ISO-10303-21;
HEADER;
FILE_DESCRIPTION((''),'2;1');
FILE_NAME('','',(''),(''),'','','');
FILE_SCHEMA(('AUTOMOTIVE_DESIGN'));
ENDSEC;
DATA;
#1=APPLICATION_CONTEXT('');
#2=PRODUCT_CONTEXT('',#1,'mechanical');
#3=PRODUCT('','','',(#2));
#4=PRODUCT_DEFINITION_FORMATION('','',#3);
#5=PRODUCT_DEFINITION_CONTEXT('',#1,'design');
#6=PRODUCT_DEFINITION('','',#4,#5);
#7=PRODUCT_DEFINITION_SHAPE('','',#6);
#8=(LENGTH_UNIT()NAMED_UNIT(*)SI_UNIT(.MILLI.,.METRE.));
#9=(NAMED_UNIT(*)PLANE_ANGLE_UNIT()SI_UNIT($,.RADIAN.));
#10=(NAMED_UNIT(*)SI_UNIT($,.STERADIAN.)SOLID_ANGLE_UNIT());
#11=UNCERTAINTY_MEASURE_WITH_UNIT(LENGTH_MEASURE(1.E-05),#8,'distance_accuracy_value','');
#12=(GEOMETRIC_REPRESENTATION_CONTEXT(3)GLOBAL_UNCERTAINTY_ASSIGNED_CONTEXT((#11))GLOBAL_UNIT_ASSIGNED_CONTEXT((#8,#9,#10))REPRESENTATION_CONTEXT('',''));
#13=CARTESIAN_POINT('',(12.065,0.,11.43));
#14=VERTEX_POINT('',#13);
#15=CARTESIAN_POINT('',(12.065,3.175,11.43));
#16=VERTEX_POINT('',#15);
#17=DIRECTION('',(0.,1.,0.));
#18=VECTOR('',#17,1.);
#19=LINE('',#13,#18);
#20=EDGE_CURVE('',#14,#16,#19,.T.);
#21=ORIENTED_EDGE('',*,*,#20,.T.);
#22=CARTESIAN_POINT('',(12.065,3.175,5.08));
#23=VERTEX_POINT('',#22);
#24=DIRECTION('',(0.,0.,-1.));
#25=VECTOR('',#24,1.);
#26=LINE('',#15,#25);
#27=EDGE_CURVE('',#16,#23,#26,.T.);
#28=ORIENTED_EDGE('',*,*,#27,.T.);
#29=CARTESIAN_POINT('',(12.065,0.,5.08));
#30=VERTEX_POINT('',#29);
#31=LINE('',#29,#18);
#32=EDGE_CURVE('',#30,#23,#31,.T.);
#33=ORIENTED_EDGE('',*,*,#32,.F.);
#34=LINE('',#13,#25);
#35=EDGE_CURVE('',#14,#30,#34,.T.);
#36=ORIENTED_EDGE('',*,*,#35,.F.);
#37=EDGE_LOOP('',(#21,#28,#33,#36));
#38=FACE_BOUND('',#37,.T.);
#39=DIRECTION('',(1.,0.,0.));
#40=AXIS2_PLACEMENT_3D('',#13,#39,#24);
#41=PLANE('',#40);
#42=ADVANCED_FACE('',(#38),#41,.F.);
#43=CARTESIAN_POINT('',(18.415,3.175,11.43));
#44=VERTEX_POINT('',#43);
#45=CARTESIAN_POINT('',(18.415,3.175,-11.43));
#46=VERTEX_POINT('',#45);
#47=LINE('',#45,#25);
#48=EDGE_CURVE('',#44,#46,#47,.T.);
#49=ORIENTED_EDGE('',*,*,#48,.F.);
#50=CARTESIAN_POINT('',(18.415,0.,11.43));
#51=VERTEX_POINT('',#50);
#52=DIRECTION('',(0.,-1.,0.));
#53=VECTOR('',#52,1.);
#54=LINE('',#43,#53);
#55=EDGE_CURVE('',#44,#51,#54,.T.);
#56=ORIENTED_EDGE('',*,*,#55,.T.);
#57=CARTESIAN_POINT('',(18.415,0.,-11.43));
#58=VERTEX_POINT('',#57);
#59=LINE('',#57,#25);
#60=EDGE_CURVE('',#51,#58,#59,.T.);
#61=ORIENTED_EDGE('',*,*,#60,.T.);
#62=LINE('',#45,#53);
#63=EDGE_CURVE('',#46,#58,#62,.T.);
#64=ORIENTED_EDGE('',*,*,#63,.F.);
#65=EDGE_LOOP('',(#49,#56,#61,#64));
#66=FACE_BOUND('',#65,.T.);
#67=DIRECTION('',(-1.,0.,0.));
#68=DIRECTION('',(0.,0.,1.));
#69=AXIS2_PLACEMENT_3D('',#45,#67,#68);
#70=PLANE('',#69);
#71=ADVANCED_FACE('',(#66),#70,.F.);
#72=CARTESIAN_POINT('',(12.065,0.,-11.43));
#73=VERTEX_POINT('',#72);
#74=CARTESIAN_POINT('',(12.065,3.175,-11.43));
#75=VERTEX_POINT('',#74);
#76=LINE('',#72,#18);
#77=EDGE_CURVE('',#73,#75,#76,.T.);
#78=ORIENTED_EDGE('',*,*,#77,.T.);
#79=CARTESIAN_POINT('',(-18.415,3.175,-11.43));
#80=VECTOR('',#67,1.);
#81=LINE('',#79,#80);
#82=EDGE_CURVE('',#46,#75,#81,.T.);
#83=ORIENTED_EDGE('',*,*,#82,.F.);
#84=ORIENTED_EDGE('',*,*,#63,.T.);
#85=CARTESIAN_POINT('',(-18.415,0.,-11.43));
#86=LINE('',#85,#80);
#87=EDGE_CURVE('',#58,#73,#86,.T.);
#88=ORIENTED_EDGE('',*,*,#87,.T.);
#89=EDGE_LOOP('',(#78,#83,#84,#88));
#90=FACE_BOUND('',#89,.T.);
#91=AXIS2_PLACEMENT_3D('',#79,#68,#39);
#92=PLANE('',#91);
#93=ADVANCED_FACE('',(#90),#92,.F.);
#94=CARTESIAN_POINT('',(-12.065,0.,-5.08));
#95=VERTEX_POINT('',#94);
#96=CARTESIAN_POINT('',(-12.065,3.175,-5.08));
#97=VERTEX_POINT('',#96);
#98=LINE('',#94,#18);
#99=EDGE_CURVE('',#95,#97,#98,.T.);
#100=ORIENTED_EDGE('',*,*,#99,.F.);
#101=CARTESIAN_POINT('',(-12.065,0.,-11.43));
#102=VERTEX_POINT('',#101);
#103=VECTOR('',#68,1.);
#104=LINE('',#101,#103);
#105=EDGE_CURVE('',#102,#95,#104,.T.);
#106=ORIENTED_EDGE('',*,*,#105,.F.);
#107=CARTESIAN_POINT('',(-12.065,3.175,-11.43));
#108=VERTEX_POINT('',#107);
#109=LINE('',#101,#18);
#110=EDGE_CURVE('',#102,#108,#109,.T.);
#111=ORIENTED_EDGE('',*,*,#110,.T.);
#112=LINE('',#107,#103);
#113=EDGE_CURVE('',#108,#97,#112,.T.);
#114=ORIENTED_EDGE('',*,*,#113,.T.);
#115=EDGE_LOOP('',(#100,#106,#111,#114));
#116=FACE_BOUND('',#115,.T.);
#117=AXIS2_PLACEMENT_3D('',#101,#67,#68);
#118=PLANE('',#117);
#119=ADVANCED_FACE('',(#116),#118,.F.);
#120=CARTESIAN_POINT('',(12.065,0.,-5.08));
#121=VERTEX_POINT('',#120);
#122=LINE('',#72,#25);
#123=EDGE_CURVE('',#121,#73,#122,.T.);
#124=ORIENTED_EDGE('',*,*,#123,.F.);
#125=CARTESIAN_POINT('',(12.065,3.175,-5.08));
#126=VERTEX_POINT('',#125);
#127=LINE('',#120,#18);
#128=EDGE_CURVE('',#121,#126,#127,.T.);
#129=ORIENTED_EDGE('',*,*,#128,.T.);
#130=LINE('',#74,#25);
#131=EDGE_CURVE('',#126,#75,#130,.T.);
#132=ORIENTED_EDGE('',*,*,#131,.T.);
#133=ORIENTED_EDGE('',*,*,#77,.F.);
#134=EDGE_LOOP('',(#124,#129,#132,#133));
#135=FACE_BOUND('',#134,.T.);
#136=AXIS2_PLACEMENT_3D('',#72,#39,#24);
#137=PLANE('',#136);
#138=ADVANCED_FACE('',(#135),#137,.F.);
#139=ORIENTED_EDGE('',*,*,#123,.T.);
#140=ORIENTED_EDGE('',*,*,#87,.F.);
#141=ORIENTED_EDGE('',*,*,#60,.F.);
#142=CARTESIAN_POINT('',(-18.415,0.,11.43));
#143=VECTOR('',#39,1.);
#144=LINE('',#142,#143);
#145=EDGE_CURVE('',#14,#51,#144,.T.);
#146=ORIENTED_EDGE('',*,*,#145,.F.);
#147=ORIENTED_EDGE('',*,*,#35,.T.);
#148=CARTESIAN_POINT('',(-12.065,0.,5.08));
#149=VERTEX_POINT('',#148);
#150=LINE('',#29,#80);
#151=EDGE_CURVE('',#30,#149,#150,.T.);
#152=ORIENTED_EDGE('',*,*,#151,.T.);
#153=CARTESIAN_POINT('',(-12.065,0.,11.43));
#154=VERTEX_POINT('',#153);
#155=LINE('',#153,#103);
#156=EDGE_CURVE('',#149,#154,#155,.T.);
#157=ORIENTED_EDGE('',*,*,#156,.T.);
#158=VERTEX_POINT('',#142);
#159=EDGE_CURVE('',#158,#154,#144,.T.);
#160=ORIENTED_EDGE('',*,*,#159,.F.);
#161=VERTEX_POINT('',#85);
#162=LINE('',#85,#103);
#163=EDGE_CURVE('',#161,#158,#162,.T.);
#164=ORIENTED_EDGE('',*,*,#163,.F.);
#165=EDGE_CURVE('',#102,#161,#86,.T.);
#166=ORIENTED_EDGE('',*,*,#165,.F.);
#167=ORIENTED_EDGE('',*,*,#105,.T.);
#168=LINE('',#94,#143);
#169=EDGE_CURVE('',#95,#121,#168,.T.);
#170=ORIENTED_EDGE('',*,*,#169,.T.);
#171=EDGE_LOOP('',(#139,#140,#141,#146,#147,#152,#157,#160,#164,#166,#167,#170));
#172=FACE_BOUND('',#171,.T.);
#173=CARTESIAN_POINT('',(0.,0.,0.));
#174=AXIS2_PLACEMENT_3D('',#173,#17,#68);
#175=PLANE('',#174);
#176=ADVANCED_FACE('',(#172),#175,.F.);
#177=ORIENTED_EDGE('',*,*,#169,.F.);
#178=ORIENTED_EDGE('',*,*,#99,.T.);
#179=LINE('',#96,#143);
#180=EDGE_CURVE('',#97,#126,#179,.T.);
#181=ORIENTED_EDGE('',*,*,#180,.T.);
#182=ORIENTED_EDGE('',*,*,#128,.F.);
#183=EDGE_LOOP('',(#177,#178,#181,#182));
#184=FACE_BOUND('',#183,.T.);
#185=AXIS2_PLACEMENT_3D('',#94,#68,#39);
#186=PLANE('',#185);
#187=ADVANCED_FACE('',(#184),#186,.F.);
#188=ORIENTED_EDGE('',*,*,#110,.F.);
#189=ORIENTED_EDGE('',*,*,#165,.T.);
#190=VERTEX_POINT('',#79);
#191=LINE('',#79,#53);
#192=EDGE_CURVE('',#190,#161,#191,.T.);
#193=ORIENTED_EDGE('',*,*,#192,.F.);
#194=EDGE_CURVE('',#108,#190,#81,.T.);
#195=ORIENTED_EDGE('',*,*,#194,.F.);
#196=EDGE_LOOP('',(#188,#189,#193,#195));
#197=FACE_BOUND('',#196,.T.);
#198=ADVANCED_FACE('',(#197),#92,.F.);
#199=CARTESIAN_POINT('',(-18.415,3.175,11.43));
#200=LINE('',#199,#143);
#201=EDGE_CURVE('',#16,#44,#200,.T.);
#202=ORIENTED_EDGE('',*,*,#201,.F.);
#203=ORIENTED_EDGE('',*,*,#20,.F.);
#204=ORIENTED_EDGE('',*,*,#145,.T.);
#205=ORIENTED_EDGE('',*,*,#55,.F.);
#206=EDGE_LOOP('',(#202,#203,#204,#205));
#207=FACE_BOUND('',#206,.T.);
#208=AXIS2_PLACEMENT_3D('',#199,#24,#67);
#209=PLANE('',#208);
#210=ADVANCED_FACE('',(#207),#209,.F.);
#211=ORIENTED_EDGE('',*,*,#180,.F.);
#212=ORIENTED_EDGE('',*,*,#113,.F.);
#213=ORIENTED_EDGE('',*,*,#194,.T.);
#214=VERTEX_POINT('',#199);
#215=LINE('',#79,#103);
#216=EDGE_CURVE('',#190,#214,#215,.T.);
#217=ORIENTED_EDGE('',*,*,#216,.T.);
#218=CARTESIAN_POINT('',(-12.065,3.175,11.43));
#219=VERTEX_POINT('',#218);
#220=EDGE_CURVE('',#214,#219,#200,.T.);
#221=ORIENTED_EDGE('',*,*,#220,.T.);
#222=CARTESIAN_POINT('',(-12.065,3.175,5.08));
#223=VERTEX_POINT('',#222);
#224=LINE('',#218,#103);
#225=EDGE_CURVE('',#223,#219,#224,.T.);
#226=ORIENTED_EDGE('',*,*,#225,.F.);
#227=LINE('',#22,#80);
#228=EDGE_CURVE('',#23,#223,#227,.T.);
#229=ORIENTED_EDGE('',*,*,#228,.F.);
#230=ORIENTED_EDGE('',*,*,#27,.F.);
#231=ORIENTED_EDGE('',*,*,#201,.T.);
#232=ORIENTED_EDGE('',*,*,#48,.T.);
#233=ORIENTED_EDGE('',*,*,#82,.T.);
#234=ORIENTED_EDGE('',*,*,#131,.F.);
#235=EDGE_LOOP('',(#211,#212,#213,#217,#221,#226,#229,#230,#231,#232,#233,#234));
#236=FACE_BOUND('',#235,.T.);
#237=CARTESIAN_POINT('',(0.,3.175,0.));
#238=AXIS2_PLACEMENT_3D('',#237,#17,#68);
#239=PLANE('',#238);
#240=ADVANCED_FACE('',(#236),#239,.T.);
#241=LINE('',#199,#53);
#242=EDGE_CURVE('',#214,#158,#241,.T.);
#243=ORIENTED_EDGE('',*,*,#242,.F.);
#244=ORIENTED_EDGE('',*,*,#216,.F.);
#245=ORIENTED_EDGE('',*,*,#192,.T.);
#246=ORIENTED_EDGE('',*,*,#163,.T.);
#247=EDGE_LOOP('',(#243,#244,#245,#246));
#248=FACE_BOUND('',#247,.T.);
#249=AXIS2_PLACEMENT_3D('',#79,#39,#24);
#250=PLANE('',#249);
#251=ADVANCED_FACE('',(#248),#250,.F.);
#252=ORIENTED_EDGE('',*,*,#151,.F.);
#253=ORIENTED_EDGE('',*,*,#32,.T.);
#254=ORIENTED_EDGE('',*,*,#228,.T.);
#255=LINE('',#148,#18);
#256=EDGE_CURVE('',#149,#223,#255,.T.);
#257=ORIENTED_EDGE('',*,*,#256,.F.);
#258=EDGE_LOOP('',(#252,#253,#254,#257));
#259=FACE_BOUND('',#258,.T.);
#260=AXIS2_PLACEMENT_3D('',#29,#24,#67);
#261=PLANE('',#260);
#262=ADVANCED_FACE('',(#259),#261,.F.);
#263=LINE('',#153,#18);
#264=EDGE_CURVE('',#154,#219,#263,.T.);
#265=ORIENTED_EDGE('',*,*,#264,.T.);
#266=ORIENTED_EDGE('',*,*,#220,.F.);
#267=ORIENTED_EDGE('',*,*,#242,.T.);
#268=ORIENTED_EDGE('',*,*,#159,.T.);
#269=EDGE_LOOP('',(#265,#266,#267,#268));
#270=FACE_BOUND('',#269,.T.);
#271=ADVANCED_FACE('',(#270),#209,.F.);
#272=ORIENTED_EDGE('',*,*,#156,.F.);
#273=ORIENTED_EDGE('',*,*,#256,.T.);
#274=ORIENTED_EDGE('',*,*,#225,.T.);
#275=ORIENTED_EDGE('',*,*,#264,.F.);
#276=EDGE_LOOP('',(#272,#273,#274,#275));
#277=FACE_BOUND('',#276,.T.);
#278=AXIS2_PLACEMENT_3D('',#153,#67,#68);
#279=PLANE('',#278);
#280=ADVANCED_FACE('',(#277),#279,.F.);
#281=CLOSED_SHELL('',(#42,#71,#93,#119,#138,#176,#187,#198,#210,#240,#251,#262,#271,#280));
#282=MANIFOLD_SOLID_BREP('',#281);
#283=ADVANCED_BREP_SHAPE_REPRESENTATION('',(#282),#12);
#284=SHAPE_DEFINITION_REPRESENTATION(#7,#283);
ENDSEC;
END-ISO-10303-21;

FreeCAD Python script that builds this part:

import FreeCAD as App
import Part
import Sketcher
Q = App.Units.Quantity


def add_polygon(sketch, points):
    """Adds a closed chain of lines whose ends are joined by coincident constraints."""
    first, n = sketch.GeometryCount, len(points)
    for a, b in zip(points, points[1:] + points[:1]):
        sketch.addGeometry(Part.LineSegment(App.Vector(*a, 0), App.Vector(*b, 0)), False)
    for i in range(n):
        sketch.addConstraint(Sketcher.Constraint("Coincident", first + i, 2, first + (i + 1) % n, 1))

doc = App.newDocument("Part")
body = doc.addObject("PartDesign::Body", "Body")

# Sketch on XZ plane
sketch1 = body.newObject("Sketcher::SketchObject", "Sketch")
sketch1.AttachmentSupport = (doc.getObject("XZ_Plane"), [""])
sketch1.MapMode = "FlatFace"
add_polygon(sketch1, [(-18, -11), (-18, 11), (18, 11), (18, -11)])  # lines 0-3
sketch1.addConstraint(Sketcher.Constraint("Vertical", 0))
sketch1.addConstraint(Sketcher.Constraint("Horizontal", 1))
sketch1.addConstraint(Sketcher.Constraint("Vertical", 2))
sketch1.addConstraint(Sketcher.Constraint("Horizontal", 3))
sketch1.addConstraint(Sketcher.Constraint("Symmetric", 0, 2, 2, 2, -1, 1))
sketch1.addConstraint(Sketcher.Constraint("DistanceY", 0, 1, 0, 2, Q("0.9 in")))
sketch1.addConstraint(Sketcher.Constraint("DistanceX", 1, 1, 1, 2, Q("1.45 in")))
pad1 = body.newObject("PartDesign::Pad", "Pad")
pad1.Profile = sketch1
pad1.Length = Q("0.125 in")
pad1.Reversed = True

# Sketch on XZ plane
sketch2 = body.newObject("Sketcher::SketchObject", "Sketch001")
sketch2.AttachmentSupport = (doc.getObject("XZ_Plane"), [""])
sketch2.MapMode = "FlatFace"
sketch2.AttachmentOffset = App.Placement(App.Vector(0, 0, -0.125 * 25.4), App.Rotation())
add_polygon(sketch2, [(-12, -11), (-12, -5), (12, -5), (12, -11)])  # lines 0-3
add_polygon(sketch2, [(-12, 5), (-12, 11), (12, 11), (12, 5)])  # lines 4-7
sketch2.addConstraint(Sketcher.Constraint("Vertical", 0))
sketch2.addConstraint(Sketcher.Constraint("Horizontal", 1))
sketch2.addConstraint(Sketcher.Constraint("Vertical", 2))
sketch2.addConstraint(Sketcher.Constraint("Horizontal", 3))
sketch2.addConstraint(Sketcher.Constraint("Vertical", 4))
sketch2.addConstraint(Sketcher.Constraint("Horizontal", 5))
sketch2.addConstraint(Sketcher.Constraint("Vertical", 6))
sketch2.addConstraint(Sketcher.Constraint("Horizontal", 7))
sketch2.addConstraint(Sketcher.Constraint("Symmetric", 2, 2, 4, 2, -1, 1))
sketch2.addConstraint(Sketcher.Constraint("Symmetric", 0, 2, 6, 2, -1, 1))
sketch2.addConstraint(Sketcher.Constraint("Vertical", 3, 2, 4, 2))
sketch2.addConstraint(Sketcher.Constraint("DistanceX", 1, 1, 1, 2, Q("0.95 in")))
sketch2.addConstraint(Sketcher.Constraint("DistanceY", 0, 1, 0, 2, Q("0.25 in")))
sketch2.addConstraint(Sketcher.Constraint("DistanceY", 0, 2, -1, 1, Q("0.2 in")))
pocket1 = body.newObject("PartDesign::Pocket", "Pocket")
pocket1.Profile = sketch2
pocket1.Type = "ThroughAll"
pocket1.Reversed = True

doc.recompute()
